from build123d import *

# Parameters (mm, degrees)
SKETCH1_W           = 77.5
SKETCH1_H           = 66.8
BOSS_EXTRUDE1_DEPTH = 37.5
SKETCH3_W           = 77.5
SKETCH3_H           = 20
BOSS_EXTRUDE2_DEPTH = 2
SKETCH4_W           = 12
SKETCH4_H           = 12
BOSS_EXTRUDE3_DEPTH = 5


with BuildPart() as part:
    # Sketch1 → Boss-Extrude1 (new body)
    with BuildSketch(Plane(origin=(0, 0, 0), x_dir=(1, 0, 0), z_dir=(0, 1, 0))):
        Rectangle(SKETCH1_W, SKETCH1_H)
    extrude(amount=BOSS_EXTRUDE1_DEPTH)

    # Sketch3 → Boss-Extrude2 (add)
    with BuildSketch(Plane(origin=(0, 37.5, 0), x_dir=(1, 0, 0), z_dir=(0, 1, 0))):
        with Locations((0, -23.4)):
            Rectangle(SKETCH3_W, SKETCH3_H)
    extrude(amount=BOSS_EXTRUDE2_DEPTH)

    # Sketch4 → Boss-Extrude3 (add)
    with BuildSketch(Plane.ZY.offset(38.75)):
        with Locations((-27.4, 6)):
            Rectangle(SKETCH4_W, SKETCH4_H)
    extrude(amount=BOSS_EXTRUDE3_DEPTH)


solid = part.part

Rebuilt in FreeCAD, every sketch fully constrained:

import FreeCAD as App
import Part
import Sketcher

V = App.Vector

doc = App.newDocument("Part")
body = doc.addObject("PartDesign::Body", "Body")

sketch1 = body.newObject("Sketcher::SketchObject", "Sketch")
sketch1.AttachmentSupport = (doc.getObject("XZ_Plane"), [""])
sketch1.MapMode = "FlatFace"
sketch1.addGeometry([
    Part.LineSegment(V(-39, -33, 0), V(-39, 33, 0)),
    Part.LineSegment(V(-39, 33, 0), V(39, 33, 0)),
    Part.LineSegment(V(39, 33, 0), V(39, -33, 0)),
    Part.LineSegment(V(39, -33, 0), V(-39, -33, 0)),
], False)
sketch1.addConstraint([
    Sketcher.Constraint("Coincident", 0, 2, 1, 1),
    Sketcher.Constraint("Coincident", 1, 2, 2, 1),
    Sketcher.Constraint("Coincident", 2, 2, 3, 1),
    Sketcher.Constraint("Coincident", 3, 2, 0, 1),
    Sketcher.Constraint("Vertical", 0),
    Sketcher.Constraint("Horizontal", 1),
    Sketcher.Constraint("Vertical", 2),
    Sketcher.Constraint("Horizontal", 3),
    Sketcher.Constraint("Symmetric", 0, 2, 2, 2, -1, 1),
    Sketcher.Constraint("DistanceX", 1, 1, 1, 2, 77.5),
    Sketcher.Constraint("DistanceY", 0, 1, 0, 2, 66.8),
])
pad1 = body.newObject("PartDesign::Pad", "Pad")
pad1.Profile = sketch1
pad1.Length = 37.5
pad1.Reversed = True

sketch2 = body.newObject("Sketcher::SketchObject", "Sketch001")
sketch2.AttachmentSupport = (doc.getObject("XZ_Plane"), [""])
sketch2.MapMode = "FlatFace"
sketch2.AttachmentOffset = App.Placement(V(0, 0, -37.5), App.Rotation())
sketch2.addGeometry([
    Part.LineSegment(V(-39, 13, 0), V(-39, 33, 0)),
    Part.LineSegment(V(-39, 33, 0), V(39, 33, 0)),
    Part.LineSegment(V(39, 33, 0), V(39, 13, 0)),
    Part.LineSegment(V(39, 13, 0), V(-39, 13, 0)),
], False)
sketch2.addConstraint([
    Sketcher.Constraint("Coincident", 0, 2, 1, 1),
    Sketcher.Constraint("Coincident", 1, 2, 2, 1),
    Sketcher.Constraint("Coincident", 2, 2, 3, 1),
    Sketcher.Constraint("Coincident", 3, 2, 0, 1),
    Sketcher.Constraint("Vertical", 0),
    Sketcher.Constraint("Horizontal", 1),
    Sketcher.Constraint("Vertical", 2),
    Sketcher.Constraint("Horizontal", 3),
    Sketcher.Constraint("DistanceY", 0, 1, 0, 2, 20.0),
    Sketcher.Constraint("DistanceX", 1, 1, 1, 2, 77.5),
    Sketcher.Constraint("DistanceY", -1, 1, 0, 2, 33.4),
    Sketcher.Constraint("DistanceX", 0, 2, -1, 1, 38.75),
])
pad2 = body.newObject("PartDesign::Pad", "Pad001")
pad2.Profile = sketch2
pad2.Length = 2
pad2.Reversed = True

sketch3 = body.newObject("Sketcher::SketchObject", "Sketch002")
sketch3.AttachmentSupport = (doc.getObject("YZ_Plane"), [""])
sketch3.MapMode = "FlatFace"
sketch3.AttachmentOffset = App.Placement(V(0, 0, -38.75), App.Rotation())
sketch3.addGeometry([
    Part.LineSegment(V(12, -33, 0), V(0, -33, 0)),
    Part.LineSegment(V(0, -33, 0), V(0, -21, 0)),
    Part.LineSegment(V(0, -21, 0), V(12, -21, 0)),
    Part.LineSegment(V(12, -21, 0), V(12, -33, 0)),
], False)
sketch3.addConstraint([
    Sketcher.Constraint("Coincident", 0, 2, 1, 1),
    Sketcher.Constraint("Coincident", 1, 2, 2, 1),
    Sketcher.Constraint("Coincident", 2, 2, 3, 1),
    Sketcher.Constraint("Coincident", 3, 2, 0, 1),
    Sketcher.Constraint("Horizontal", 0),
    Sketcher.Constraint("Vertical", 1),
    Sketcher.Constraint("Horizontal", 2),
    Sketcher.Constraint("Vertical", 3),
    Sketcher.Constraint("PointOnObject", 0, 2, -2),
    Sketcher.Constraint("Equal", 2, 1),
    Sketcher.Constraint("DistanceX", 0, 2, 0, 1, 12.0),
    Sketcher.Constraint("DistanceY", 0, 2, -1, 1, 33.4),
])
pad3 = body.newObject("PartDesign::Pad", "Pad002")
pad3.Profile = sketch3
pad3.Length = 5
pad3.Reversed = True

doc.recompute()
